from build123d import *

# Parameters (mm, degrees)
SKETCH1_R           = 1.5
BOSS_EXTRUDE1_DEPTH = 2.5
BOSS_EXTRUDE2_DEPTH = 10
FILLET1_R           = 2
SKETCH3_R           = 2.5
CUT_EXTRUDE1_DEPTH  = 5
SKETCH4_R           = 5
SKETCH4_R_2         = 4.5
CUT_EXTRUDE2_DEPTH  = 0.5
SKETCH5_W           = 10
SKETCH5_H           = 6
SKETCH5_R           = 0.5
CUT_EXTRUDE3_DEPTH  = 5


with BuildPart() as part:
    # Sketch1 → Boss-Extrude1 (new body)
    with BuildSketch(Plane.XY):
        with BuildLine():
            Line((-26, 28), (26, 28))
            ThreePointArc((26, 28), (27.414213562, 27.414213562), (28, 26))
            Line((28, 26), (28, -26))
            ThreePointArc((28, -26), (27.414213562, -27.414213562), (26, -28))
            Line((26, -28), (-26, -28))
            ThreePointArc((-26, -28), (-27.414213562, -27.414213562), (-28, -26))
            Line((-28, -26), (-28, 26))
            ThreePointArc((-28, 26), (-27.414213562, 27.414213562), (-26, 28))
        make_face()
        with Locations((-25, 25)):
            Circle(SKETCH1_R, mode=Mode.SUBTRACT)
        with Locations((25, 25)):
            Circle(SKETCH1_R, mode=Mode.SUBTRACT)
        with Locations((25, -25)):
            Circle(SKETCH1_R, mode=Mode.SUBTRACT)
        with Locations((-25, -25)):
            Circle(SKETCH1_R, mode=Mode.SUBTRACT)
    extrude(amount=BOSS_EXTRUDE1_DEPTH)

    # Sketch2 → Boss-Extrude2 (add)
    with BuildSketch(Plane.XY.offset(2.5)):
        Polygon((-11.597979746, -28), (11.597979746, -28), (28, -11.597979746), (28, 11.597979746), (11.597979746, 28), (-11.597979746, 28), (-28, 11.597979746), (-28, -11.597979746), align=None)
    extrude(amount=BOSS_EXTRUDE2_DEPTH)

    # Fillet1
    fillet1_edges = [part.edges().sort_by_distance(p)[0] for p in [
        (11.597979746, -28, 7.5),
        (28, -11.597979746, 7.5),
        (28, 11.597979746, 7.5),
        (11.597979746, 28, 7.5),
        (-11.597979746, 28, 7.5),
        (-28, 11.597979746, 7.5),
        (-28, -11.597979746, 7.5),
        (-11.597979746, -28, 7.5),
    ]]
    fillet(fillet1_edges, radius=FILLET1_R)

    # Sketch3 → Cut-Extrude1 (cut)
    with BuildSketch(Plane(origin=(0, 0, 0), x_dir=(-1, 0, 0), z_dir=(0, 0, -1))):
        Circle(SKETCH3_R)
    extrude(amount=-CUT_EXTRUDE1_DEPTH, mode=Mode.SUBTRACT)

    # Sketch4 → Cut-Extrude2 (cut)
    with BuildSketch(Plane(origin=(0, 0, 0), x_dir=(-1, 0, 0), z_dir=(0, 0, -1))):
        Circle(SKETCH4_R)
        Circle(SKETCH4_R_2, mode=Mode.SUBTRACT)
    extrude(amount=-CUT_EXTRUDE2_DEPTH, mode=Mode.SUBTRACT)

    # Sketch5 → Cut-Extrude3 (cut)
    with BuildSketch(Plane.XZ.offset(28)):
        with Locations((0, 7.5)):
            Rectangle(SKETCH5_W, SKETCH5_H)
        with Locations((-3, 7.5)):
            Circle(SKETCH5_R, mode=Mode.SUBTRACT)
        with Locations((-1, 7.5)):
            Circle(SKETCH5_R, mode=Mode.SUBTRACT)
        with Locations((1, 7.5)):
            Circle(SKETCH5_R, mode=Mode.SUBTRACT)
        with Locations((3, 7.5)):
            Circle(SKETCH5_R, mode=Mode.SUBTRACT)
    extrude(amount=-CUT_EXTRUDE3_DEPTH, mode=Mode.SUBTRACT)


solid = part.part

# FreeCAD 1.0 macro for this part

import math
import FreeCAD as App
import Part
import Sketcher

V = App.Vector


def edges_at(feature, points):
    """Names of the edges that pass closest to the given points."""
    edges = feature.Shape.Edges
    near = lambda p: min(range(len(edges)), key=lambda i: edges[i].distToShape(Part.Vertex(*p))[0])
    return sorted({f"Edge{near(p) + 1}" for p in points})

doc = App.newDocument("Part")
params = doc.addObject("Spreadsheet::Sheet", "Params")
for row, (alias, value) in enumerate([
    ("sketch1_diameter", "3 mm"),
    ("sketch1_radius", "2 mm"),
    ("sketch1_width", "52 mm"),
    ("pad1_length", "2.5 mm"),
    ("pad2_length", "10 mm"),
    ("fillet_radius", "2 mm"),
    ("sketch3_diameter", "5 mm"),
    ("pocket1_length", "5 mm"),
    ("sketch4_diameter", "10 mm"),
    ("sketch4_diameter2", "9 mm"),
    ("pocket2_length", "0.5 mm"),
    ("sketch5_diameter", "1 mm"),
    ("sketch5_width", "10 mm"),
    ("sketch5_height", "6 mm"),
    ("pocket3_length", "5 mm"),
], start=1):
    params.set(f"A{row}", alias)
    params.set(f"B{row}", "=" + value)
    params.setAlias(f"B{row}", alias)

body = doc.addObject("PartDesign::Body", "Body")

sketch1 = body.newObject("Sketcher::SketchObject", "Sketch")
sketch1.AttachmentSupport = (doc.getObject("XY_Plane"), [""])
sketch1.MapMode = "FlatFace"
sketch1.addGeometry([
    Part.LineSegment(V(26, 28, 0), V(-26, 28, 0)),
    Part.ArcOfCircle(Part.Circle(V(-26, 26, 0), V(0, 0, 1), 2), math.radians(90), math.radians(180)),
    Part.LineSegment(V(-28, 26, 0), V(-28, -26, 0)),
    Part.ArcOfCircle(Part.Circle(V(-26, -26, 0), V(0, 0, 1), 2), math.radians(-180), math.radians(-90)),
    Part.LineSegment(V(-26, -28, 0), V(26, -28, 0)),
    Part.ArcOfCircle(Part.Circle(V(26, -26, 0), V(0, 0, 1), 2), math.radians(-90), math.radians(0)),
    Part.LineSegment(V(28, -26, 0), V(28, 26, 0)),
    Part.ArcOfCircle(Part.Circle(V(26, 26, 0), V(0, 0, 1), 2), math.radians(0), math.radians(90)),
    Part.Circle(V(25, -25, 0), V(0, 0, 1), 1.5),
    Part.Circle(V(-25, -25, 0), V(0, 0, 1), 1.5),
    Part.Circle(V(25, 25, 0), V(0, 0, 1), 1.5),
    Part.Circle(V(-25, 25, 0), V(0, 0, 1), 1.5),
], False)
sketch1.addConstraint([
    Sketcher.Constraint("Tangent", 0, 2, 1, 1),
    Sketcher.Constraint("Tangent", 1, 2, 2, 1),
    Sketcher.Constraint("Tangent", 2, 2, 3, 1),
    Sketcher.Constraint("Tangent", 3, 2, 4, 1),
    Sketcher.Constraint("Tangent", 4, 2, 5, 1),
    Sketcher.Constraint("Tangent", 5, 2, 6, 1),
    Sketcher.Constraint("Tangent", 6, 2, 7, 1),
    Sketcher.Constraint("Tangent", 7, 2, 0, 1),
    Sketcher.Constraint("Horizontal", 0),
    Sketcher.Constraint("Vertical", 2),
    Sketcher.Constraint("Horizontal", 4),
    Sketcher.Constraint("Vertical", 6),
    Sketcher.Constraint("Equal", 1, 3),
    Sketcher.Constraint("Equal", 3, 5),
    Sketcher.Constraint("Equal", 5, 7),
    Sketcher.Constraint("Equal", 8, 9),
    Sketcher.Constraint("Equal", 9, 10),
    Sketcher.Constraint("Equal", 10, 11),
    Sketcher.Constraint("Symmetric", 1, 3, 5, 3, -1, 1),
    Sketcher.Constraint("Symmetric", 9, 3, 10, 3, -1, 1),
    Sketcher.Constraint("Symmetric", 8, 3, 11, 3, -1, 1),
    Sketcher.Constraint("Symmetric", 8, 3, 9, 3, -2),
    Sketcher.Constraint("Equal", 4, 2),
    Sketcher.Constraint("Diameter", 8, 3.0),
    Sketcher.Constraint("Radius", 1, 2.0),
    Sketcher.Constraint("DistanceX", 0, 2, 0, 1, 52.0),
    Sketcher.Constraint("DistanceX", -1, 1, 8, 3, 25.0),
    Sketcher.Constraint("DistanceY", 8, 3, -1, 1, 25.0),
])
sketch1.setExpression("Constraints[23]", "Params.sketch1_diameter")
sketch1.setExpression("Constraints[24]", "Params.sketch1_radius")
sketch1.setExpression("Constraints[25]", "Params.sketch1_width")
pad1 = body.newObject("PartDesign::Pad", "Pad")
pad1.Profile = sketch1
pad1.setExpression("Length", "Params.pad1_length")

sketch2 = body.newObject("Sketcher::SketchObject", "Sketch001")
sketch2.AttachmentSupport = (doc.getObject("XY_Plane"), [""])
sketch2.MapMode = "FlatFace"
sketch2.AttachmentOffset = App.Placement(V(0, 0, 2.5), App.Rotation())
sketch2.addGeometry([
    Part.LineSegment(V(-12, -28, 0), V(12, -28, 0)),
    Part.LineSegment(V(12, -28, 0), V(28, -12, 0)),
    Part.LineSegment(V(28, -12, 0), V(28, 12, 0)),
    Part.LineSegment(V(28, 12, 0), V(12, 28, 0)),
    Part.LineSegment(V(12, 28, 0), V(-12, 28, 0)),
    Part.LineSegment(V(-12, 28, 0), V(-28, 12, 0)),
    Part.LineSegment(V(-28, 12, 0), V(-28, -12, 0)),
    Part.LineSegment(V(-28, -12, 0), V(-12, -28, 0)),
], False)
sketch2.addConstraint([
    Sketcher.Constraint("Coincident", 0, 2, 1, 1),
    Sketcher.Constraint("Coincident", 1, 2, 2, 1),
    Sketcher.Constraint("Coincident", 2, 2, 3, 1),
    Sketcher.Constraint("Coincident", 3, 2, 4, 1),
    Sketcher.Constraint("Coincident", 4, 2, 5, 1),
    Sketcher.Constraint("Coincident", 5, 2, 6, 1),
    Sketcher.Constraint("Coincident", 6, 2, 7, 1),
    Sketcher.Constraint("Coincident", 7, 2, 0, 1),
    Sketcher.Constraint("Horizontal", 0),
    Sketcher.Constraint("Vertical", 2),
    Sketcher.Constraint("Horizontal", 4),
    Sketcher.Constraint("Vertical", 6),
    Sketcher.Constraint("Symmetric", 0, 2, 4, 2, -1, 1),
    Sketcher.Constraint("Symmetric", 1, 2, 5, 2, -1, 1),
    Sketcher.Constraint("Perpendicular", 1, 3),
    Sketcher.Constraint("Perpendicular", 5, 7),
    Sketcher.Constraint("Horizontal", 2, 2, 5, 2),
    Sketcher.Constraint("Horizontal", 1, 2, 6, 2),
    Sketcher.Constraint("Vertical", 0, 2, 3, 2),
    Sketcher.Constraint("Equal", 4, 2),
    Sketcher.Constraint("DistanceY", 0, 2, -1, 1, 28.0),
    Sketcher.Constraint("DistanceX", 0, 1, 0, 2, 23.195959),
])
pad2 = body.newObject("PartDesign::Pad", "Pad001")
pad2.Profile = sketch2
pad2.setExpression("Length", "Params.pad2_length")
doc.recompute()

fillet = body.newObject("PartDesign::Fillet", "Fillet")
fillet.Base = (pad2, edges_at(pad2, [
    (11.598, -28, 7.5),
    (28, -11.598, 7.5),
    (28, 11.598, 7.5),
    (11.598, 28, 7.5),
    (-11.598, 28, 7.5),
    (-28, 11.598, 7.5),
    (-28, -11.598, 7.5),
    (-11.598, -28, 7.5),
]))
fillet.setExpression("Radius", "Params.fillet_radius")

sketch3 = body.newObject("Sketcher::SketchObject", "Sketch002")
sketch3.AttachmentSupport = (doc.getObject("XY_Plane"), [""])
sketch3.MapMode = "FlatFace"
sketch3.addGeometry(Part.Circle(V(0, 0, 0), V(0, 0, 1), 2.5), False)
sketch3.addConstraint([
    Sketcher.Constraint("Coincident", 0, 3, -1, 1),
    Sketcher.Constraint("Diameter", 0, 5.0),
])
sketch3.setExpression("Constraints[1]", "Params.sketch3_diameter")
pocket1 = body.newObject("PartDesign::Pocket", "Pocket")
pocket1.Profile = sketch3
pocket1.setExpression("Length", "Params.pocket1_length")
pocket1.Reversed = True

sketch4 = body.newObject("Sketcher::SketchObject", "Sketch003")
sketch4.AttachmentSupport = (doc.getObject("XY_Plane"), [""])
sketch4.MapMode = "FlatFace"
sketch4.addGeometry([
    Part.Circle(V(0, 0, 0), V(0, 0, 1), 5),
    Part.Circle(V(0, 0, 0), V(0, 0, 1), 4.5),
], False)
sketch4.addConstraint([
    Sketcher.Constraint("Coincident", 0, 3, -1, 1),
    Sketcher.Constraint("Coincident", 1, 3, -1, 1),
    Sketcher.Constraint("Diameter", 0, 10.0),
    Sketcher.Constraint("Diameter", 1, 9.0),
])
sketch4.setExpression("Constraints[2]", "Params.sketch4_diameter")
sketch4.setExpression("Constraints[3]", "Params.sketch4_diameter2")
pocket2 = body.newObject("PartDesign::Pocket", "Pocket001")
pocket2.Profile = sketch4
pocket2.setExpression("Length", "Params.pocket2_length")
pocket2.Reversed = True

sketch5 = body.newObject("Sketcher::SketchObject", "Sketch004")
sketch5.AttachmentSupport = (doc.getObject("XZ_Plane"), [""])
sketch5.MapMode = "FlatFace"
sketch5.AttachmentOffset = App.Placement(V(0, 0, 28), App.Rotation())
sketch5.addGeometry([
    Part.LineSegment(V(-5, 10.5, 0), V(-5, 4.5, 0)),
    Part.LineSegment(V(-5, 4.5, 0), V(5, 4.5, 0)),
    Part.LineSegment(V(5, 4.5, 0), V(5, 10.5, 0)),
    Part.LineSegment(V(5, 10.5, 0), V(-5, 10.5, 0)),
    Part.Circle(V(-3, 7.5, 0), V(0, 0, 1), 0.5),
    Part.Circle(V(-1, 7.5, 0), V(0, 0, 1), 0.5),
    Part.Circle(V(1, 7.5, 0), V(0, 0, 1), 0.5),
    Part.Circle(V(3, 7.5, 0), V(0, 0, 1), 0.5),
], False)
sketch5.addConstraint([
    Sketcher.Constraint("Coincident", 0, 2, 1, 1),
    Sketcher.Constraint("Coincident", 1, 2, 2, 1),
    Sketcher.Constraint("Coincident", 2, 2, 3, 1),
    Sketcher.Constraint("Coincident", 3, 2, 0, 1),
    Sketcher.Constraint("Vertical", 0),
    Sketcher.Constraint("Horizontal", 1),
    Sketcher.Constraint("Vertical", 2),
    Sketcher.Constraint("Horizontal", 3),
    Sketcher.Constraint("Equal", 4, 5),
    Sketcher.Constraint("Equal", 5, 6),
    Sketcher.Constraint("Equal", 6, 7),
    Sketcher.Constraint("Symmetric", 5, 3, 6, 3, -2),
    Sketcher.Constraint("Symmetric", 4, 3, 7, 3, -2),
    Sketcher.Constraint("Horizontal", 4, 3, 5, 3),
    Sketcher.Constraint("Diameter", 4, 1.0),
    Sketcher.Constraint("DistanceX", 1, 1, 1, 2, 10.0),
    Sketcher.Constraint("DistanceY", 0, 2, 0, 1, 6.0),
    Sketcher.Constraint("DistanceX", 4, 3, -1, 1, 3.0),
    Sketcher.Constraint("DistanceX", 5, 3, -1, 1, 1.0),
    Sketcher.Constraint("DistanceX", 0, 2, -1, 1, 5.0),
    Sketcher.Constraint("DistanceY", 0, 2, 4, 3, 3.0),
    Sketcher.Constraint("DistanceY", -1, 1, 4, 3, 7.5),
])
sketch5.setExpression("Constraints[14]", "Params.sketch5_diameter")
sketch5.setExpression("Constraints[15]", "Params.sketch5_width")
sketch5.setExpression("Constraints[16]", "Params.sketch5_height")
pocket3 = body.newObject("PartDesign::Pocket", "Pocket002")
pocket3.Profile = sketch5
pocket3.setExpression("Length", "Params.pocket3_length")

doc.recompute()
